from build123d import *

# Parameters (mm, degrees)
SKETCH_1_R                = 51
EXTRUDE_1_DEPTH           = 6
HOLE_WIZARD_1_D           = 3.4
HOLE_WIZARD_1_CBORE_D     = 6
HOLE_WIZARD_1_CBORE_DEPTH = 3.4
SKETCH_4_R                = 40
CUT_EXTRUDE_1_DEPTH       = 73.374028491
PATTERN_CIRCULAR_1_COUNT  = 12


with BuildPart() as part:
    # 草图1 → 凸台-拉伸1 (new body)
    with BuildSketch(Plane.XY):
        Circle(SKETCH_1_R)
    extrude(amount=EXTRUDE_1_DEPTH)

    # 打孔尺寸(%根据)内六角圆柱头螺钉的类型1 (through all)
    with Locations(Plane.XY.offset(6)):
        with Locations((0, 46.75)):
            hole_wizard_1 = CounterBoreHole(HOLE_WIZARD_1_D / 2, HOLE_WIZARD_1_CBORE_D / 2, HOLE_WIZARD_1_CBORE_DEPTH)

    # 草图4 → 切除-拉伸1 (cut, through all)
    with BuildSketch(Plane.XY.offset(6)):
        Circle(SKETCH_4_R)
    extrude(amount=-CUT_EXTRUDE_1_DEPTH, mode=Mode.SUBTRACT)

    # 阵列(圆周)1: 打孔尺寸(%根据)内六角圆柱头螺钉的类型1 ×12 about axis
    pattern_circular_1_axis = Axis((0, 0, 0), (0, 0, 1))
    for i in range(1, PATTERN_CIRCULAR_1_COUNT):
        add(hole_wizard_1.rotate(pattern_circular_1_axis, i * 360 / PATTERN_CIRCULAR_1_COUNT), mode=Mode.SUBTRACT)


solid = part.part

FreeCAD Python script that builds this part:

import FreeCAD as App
import Part
import Sketcher
from FreeCAD import Vector
Q = App.Units.Quantity

doc = App.newDocument("Part")
body = doc.addObject("PartDesign::Body", "Body")

sketch1 = body.newObject("Sketcher::SketchObject", "Sketch")
sketch1.AttachmentSupport = (doc.getObject("XY_Plane"), [""])
sketch1.MapMode = "FlatFace"
sketch1.addGeometry(Part.Circle(Vector(0, 0, 0), Vector(0, 0, 1), 51), False)
sketch1.addConstraint([
    Sketcher.Constraint("Coincident", 0, 3, -1, 1),
    Sketcher.Constraint("Diameter", 0, Q("102 mm")),
])
pad1 = body.newObject("PartDesign::Pad", "Pad")
pad1.Profile = sketch1
pad1.Length = 6

sketch2 = body.newObject("Sketcher::SketchObject", "Sketch001")
sketch2.AttachmentSupport = (doc.getObject("XY_Plane"), [""])
sketch2.MapMode = "FlatFace"
sketch2.AttachmentOffset = App.Placement(Vector(0, 0, 6), App.Rotation())
sketch2.addGeometry(Part.Circle(Vector(0, 46.8, 0), Vector(0, 0, 1), 1.7), False)
sketch2.addConstraint([
    Sketcher.Constraint("PointOnObject", 0, 3, -2),
    Sketcher.Constraint("Diameter", 0, Q("3.4 mm")),
    Sketcher.Constraint("DistanceY", -1, 1, 0, 3, Q("46.75 mm")),
])
doc.recompute()
hole = body.newObject("PartDesign::Hole", "Hole")
hole.Profile = sketch2
hole.ThreadType = "None"
hole.Diameter = 3.4
hole.DepthType = "ThroughAll"
hole.HoleCutType = "Counterbore"
hole.HoleCutDiameter = 6
hole.HoleCutDepth = 3.4

sketch3 = body.newObject("Sketcher::SketchObject", "Sketch002")
sketch3.AttachmentSupport = (doc.getObject("XY_Plane"), [""])
sketch3.MapMode = "FlatFace"
sketch3.AttachmentOffset = App.Placement(Vector(0, 0, 6), App.Rotation())
sketch3.addGeometry(Part.Circle(Vector(0, 0, 0), Vector(0, 0, 1), 40), False)
sketch3.addConstraint([
    Sketcher.Constraint("Coincident", 0, 3, -1, 1),
    Sketcher.Constraint("Diameter", 0, Q("80 mm")),
])
pocket1 = body.newObject("PartDesign::Pocket", "Pocket")
pocket1.Profile = sketch3
pocket1.Type = "ThroughAll"
doc.recompute()

polarpattern = body.newObject("PartDesign::PolarPattern", "PolarPattern")
polarpattern.Originals = [hole]
polarpattern.Axis = (doc.getObject("Z_Axis"), [""])
polarpattern.Angle = 360
polarpattern.Occurrences = 12
body.Tip = polarpattern

doc.recompute()
